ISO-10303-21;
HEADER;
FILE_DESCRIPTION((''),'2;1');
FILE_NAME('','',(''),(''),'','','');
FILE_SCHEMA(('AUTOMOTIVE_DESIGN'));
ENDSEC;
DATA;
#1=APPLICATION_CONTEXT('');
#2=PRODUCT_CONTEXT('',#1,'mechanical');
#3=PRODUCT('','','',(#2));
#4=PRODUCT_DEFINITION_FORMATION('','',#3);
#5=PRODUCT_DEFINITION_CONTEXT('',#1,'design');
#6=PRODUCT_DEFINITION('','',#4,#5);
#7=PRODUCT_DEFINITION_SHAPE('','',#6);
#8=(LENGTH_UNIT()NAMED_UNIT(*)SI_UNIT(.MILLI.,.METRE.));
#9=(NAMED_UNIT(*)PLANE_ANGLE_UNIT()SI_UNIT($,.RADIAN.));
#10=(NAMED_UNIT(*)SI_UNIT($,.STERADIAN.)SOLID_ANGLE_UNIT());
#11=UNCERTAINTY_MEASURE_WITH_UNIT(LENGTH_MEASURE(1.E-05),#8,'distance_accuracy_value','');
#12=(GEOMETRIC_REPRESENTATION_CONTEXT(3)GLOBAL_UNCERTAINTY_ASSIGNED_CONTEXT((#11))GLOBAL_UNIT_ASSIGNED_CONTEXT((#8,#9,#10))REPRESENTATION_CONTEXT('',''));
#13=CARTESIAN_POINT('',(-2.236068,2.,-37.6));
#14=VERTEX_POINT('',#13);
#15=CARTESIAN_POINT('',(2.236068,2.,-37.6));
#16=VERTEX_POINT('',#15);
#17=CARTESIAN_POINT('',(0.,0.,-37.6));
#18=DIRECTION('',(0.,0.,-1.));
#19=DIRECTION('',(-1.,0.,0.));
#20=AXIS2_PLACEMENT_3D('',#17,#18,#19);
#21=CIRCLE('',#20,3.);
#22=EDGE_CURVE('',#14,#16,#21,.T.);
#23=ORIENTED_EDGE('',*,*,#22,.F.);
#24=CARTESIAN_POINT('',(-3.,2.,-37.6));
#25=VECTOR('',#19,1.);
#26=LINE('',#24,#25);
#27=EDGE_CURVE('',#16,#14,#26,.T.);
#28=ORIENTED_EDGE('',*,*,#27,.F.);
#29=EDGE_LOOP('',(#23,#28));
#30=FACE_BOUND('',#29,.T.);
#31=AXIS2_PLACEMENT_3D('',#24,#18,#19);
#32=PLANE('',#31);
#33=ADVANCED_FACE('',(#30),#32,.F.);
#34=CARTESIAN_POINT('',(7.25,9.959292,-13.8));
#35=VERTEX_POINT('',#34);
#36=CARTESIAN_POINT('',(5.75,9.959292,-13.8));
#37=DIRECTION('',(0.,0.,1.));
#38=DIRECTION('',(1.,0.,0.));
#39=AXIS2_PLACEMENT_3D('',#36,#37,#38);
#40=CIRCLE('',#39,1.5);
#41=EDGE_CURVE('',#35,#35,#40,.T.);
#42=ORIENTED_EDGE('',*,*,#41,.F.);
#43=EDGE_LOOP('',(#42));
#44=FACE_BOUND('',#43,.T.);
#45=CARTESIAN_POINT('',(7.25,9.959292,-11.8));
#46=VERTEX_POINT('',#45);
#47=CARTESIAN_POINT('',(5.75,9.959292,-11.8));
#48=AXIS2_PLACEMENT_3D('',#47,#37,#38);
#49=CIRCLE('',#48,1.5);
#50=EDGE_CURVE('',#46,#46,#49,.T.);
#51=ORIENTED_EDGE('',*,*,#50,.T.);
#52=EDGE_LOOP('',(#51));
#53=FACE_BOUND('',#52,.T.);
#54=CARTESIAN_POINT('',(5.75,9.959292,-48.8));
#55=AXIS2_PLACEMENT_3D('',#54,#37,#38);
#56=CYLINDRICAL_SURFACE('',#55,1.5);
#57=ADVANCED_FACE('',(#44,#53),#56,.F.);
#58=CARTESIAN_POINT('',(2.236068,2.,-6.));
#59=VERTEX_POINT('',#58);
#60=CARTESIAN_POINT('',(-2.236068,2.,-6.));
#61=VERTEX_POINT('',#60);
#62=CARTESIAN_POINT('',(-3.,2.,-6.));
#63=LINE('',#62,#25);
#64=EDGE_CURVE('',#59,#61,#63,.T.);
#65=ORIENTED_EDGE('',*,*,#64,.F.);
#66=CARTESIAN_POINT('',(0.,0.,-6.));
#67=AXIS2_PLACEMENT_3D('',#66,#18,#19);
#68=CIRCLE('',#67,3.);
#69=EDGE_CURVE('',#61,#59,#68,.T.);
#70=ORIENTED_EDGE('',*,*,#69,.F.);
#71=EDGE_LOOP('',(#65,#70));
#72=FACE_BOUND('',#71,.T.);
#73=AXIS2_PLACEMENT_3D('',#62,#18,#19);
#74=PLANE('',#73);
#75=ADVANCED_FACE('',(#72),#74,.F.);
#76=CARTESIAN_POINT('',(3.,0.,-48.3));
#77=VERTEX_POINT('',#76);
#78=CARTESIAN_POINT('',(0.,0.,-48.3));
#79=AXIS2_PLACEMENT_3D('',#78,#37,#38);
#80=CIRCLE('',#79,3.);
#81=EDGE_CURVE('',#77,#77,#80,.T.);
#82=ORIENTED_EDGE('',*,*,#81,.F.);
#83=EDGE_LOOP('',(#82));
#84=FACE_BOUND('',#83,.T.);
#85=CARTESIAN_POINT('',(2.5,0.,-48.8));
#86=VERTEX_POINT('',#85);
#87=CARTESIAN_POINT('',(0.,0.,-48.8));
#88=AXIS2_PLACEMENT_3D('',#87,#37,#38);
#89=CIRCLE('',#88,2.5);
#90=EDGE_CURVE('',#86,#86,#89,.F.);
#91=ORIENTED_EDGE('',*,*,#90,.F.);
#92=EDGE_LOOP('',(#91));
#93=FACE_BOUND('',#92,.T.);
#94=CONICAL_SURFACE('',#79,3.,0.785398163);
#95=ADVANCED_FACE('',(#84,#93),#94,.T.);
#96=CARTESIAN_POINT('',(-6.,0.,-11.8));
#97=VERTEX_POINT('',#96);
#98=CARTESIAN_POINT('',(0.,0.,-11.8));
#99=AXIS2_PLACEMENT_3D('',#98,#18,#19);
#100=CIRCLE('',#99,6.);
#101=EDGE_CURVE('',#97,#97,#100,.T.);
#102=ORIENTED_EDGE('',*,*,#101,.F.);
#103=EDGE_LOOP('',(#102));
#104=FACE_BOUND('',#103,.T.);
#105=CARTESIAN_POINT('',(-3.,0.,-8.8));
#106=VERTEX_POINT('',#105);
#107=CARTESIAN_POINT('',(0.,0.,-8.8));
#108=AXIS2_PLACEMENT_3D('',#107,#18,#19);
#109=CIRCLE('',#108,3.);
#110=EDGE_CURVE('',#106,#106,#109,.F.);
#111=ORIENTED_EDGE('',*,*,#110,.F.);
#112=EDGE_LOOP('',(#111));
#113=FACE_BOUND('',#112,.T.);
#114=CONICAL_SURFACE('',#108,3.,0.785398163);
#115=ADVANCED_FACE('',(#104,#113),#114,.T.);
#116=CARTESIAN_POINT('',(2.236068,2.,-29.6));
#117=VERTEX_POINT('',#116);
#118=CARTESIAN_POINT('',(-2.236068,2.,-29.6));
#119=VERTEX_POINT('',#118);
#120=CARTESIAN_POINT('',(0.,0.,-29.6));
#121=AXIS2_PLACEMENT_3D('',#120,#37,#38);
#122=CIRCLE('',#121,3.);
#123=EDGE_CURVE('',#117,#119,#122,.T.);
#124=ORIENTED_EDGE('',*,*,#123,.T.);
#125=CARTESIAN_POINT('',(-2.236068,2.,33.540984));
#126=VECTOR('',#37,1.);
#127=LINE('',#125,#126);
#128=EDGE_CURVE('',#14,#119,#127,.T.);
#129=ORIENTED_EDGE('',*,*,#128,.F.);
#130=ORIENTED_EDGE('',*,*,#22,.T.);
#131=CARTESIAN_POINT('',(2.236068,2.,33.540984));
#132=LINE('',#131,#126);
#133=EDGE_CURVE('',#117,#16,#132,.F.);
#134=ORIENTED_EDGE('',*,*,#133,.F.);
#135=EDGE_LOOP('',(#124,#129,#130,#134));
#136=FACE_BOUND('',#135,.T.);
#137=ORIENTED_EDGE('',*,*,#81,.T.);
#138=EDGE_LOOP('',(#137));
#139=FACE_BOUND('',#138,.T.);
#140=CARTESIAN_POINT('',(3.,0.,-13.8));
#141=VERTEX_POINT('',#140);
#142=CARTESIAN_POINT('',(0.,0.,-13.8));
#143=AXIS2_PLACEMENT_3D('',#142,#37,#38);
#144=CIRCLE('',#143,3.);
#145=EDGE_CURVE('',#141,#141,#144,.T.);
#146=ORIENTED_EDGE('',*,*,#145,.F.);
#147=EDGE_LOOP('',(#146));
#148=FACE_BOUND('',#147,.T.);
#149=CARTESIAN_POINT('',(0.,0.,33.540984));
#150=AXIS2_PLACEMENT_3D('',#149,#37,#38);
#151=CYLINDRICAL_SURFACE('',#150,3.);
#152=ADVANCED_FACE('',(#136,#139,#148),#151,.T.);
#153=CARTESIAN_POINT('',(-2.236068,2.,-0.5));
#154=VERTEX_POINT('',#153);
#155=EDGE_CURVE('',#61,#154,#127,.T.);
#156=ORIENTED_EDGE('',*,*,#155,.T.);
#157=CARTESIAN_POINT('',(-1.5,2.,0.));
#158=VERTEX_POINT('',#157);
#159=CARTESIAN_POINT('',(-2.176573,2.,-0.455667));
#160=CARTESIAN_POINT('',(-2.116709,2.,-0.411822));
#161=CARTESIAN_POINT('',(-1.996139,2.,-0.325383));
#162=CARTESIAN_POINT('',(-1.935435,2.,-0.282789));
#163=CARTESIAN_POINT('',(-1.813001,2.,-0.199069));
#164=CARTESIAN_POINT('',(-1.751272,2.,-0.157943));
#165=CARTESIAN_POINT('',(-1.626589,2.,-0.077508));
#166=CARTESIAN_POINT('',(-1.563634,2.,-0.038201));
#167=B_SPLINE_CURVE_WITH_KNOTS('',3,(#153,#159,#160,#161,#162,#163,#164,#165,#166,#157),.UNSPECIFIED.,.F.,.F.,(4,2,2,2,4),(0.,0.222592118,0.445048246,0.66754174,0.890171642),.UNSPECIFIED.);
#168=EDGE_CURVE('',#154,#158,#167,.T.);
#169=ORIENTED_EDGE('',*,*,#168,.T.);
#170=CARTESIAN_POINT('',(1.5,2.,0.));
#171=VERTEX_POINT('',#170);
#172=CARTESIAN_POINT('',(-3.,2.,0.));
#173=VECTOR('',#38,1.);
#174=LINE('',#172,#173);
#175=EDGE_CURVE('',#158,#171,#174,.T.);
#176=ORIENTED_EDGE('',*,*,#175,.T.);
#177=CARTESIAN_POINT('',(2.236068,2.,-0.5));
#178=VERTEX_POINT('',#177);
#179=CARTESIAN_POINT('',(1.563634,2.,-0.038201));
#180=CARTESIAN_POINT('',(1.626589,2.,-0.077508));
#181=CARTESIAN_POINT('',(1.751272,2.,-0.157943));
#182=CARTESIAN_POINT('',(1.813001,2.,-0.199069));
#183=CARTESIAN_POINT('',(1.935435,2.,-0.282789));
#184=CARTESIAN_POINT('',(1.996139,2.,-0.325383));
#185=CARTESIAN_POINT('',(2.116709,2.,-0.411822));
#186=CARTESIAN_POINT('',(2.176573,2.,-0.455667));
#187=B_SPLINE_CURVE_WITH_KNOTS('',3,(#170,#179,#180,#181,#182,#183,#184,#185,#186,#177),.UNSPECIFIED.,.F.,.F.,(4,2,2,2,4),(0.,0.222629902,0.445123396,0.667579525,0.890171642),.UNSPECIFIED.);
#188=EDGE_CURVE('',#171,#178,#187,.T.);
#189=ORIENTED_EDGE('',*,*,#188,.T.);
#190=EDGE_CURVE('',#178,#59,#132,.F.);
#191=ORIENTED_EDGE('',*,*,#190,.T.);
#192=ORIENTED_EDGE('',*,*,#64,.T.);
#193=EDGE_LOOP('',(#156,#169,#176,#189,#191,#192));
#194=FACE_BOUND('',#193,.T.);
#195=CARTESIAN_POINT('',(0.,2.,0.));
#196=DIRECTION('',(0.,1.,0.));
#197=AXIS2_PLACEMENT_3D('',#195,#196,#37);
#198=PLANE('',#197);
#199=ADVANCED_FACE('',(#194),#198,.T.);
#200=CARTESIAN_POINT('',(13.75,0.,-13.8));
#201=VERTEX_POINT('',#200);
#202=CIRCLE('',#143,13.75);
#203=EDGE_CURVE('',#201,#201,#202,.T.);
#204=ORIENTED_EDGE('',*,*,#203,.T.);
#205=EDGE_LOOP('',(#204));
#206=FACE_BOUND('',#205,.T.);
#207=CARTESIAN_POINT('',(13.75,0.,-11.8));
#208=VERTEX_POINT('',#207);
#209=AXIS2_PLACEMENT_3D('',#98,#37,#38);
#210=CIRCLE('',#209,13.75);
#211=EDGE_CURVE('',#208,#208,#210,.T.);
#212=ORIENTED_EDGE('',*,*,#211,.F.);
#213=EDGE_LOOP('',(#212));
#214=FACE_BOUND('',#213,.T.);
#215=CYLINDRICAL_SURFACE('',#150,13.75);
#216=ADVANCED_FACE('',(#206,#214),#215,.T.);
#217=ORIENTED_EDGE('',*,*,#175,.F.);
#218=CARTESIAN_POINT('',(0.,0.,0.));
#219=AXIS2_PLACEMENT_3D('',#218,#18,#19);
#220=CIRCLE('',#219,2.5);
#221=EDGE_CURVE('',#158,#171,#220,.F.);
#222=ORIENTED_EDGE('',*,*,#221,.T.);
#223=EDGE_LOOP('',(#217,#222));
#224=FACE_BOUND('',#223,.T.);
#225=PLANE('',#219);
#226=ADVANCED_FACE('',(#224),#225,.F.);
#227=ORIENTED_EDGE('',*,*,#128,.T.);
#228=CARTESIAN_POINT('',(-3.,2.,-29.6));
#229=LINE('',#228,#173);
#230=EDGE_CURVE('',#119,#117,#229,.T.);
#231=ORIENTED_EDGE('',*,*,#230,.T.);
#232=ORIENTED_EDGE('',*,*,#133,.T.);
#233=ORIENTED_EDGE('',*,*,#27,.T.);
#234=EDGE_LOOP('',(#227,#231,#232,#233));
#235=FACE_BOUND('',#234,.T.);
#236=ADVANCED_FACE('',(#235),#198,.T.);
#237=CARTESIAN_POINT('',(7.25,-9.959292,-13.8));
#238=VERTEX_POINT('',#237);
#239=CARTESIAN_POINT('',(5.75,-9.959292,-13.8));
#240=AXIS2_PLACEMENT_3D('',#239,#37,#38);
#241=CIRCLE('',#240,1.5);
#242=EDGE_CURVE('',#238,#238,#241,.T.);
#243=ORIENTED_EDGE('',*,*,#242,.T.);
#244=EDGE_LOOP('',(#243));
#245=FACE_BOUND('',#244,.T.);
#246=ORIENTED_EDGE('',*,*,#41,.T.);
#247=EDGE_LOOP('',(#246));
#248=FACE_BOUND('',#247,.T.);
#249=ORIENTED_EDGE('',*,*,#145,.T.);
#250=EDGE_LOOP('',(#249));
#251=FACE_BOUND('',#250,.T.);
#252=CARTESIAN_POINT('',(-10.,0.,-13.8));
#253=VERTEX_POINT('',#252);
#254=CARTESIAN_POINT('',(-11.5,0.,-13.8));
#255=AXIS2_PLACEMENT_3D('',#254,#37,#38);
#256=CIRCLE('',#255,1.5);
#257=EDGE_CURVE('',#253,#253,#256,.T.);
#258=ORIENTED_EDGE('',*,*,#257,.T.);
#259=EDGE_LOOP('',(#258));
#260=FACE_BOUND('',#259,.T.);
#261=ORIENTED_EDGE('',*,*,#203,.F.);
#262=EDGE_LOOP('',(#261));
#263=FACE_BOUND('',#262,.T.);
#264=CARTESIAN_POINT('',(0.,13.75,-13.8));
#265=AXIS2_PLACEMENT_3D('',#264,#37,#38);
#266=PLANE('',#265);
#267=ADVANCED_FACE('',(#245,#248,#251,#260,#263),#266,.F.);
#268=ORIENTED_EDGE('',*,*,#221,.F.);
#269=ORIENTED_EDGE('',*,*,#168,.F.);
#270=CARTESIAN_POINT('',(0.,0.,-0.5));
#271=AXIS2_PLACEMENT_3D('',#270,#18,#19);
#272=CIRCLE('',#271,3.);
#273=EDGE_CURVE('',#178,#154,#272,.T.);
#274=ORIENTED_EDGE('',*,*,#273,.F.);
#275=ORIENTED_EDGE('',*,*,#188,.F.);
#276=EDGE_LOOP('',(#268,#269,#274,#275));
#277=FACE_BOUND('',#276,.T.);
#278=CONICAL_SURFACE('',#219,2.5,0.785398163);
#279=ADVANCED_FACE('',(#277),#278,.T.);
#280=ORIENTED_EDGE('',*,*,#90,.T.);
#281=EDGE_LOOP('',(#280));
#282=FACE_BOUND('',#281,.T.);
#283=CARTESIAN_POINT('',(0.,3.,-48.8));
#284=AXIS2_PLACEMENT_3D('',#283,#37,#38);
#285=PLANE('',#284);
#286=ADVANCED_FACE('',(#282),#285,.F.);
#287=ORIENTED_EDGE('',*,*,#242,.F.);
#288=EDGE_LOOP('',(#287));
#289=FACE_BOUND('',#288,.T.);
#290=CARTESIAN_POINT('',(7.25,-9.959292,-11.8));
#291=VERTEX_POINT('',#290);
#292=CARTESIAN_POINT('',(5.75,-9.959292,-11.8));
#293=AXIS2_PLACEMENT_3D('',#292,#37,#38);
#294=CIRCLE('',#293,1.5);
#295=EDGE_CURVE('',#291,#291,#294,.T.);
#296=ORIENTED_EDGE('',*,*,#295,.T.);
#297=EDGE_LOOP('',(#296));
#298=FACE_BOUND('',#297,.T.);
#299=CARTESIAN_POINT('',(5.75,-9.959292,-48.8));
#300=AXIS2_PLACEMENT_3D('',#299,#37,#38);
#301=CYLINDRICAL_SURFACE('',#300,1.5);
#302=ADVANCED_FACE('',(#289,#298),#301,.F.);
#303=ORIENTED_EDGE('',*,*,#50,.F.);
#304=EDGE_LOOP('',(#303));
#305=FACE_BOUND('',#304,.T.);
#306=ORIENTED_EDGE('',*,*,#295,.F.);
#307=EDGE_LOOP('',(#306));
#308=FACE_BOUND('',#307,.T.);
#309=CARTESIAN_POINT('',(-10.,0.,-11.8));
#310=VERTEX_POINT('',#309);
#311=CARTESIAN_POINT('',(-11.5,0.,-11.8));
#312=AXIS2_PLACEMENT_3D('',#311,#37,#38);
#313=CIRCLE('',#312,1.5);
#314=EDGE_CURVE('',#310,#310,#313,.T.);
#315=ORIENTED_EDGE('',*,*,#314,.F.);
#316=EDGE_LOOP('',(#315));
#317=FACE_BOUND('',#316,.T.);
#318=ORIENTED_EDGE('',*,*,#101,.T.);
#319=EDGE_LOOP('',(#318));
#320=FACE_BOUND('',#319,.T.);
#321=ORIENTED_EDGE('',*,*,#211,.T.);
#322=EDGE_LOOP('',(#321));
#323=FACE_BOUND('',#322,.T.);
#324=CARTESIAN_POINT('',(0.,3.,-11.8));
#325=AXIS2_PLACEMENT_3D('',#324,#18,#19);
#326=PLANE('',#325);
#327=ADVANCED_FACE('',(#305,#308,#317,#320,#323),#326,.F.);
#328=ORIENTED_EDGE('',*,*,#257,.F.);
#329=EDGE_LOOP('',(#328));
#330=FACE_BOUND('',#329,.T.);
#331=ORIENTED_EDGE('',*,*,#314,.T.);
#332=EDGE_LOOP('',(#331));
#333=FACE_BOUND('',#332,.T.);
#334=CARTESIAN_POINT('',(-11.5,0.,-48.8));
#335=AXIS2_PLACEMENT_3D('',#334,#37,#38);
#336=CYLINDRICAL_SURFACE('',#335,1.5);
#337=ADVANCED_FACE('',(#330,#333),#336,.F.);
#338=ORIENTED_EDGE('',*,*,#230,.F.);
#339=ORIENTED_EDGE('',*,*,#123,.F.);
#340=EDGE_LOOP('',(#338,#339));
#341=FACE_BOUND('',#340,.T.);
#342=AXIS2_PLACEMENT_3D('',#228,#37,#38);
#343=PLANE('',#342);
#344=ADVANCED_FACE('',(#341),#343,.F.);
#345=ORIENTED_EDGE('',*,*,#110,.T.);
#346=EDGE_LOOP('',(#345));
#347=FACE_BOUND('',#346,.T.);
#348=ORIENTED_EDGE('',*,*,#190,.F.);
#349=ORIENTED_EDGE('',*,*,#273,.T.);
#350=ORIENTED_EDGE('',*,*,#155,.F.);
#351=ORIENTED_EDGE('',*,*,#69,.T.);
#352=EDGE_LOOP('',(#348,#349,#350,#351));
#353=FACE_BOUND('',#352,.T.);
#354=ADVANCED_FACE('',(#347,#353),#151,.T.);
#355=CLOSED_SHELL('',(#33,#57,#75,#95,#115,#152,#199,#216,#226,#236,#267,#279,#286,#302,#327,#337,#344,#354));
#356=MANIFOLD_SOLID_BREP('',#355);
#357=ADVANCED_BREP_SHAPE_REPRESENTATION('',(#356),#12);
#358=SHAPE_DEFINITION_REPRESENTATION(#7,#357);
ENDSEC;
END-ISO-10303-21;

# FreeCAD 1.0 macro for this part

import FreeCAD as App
import Part
import Sketcher

V = App.Vector
Q = App.Units.Quantity


def edges_at(feature, points):
    """Names of the edges that pass closest to the given points."""
    edges = feature.Shape.Edges
    near = lambda p: min(range(len(edges)), key=lambda i: edges[i].distToShape(Part.Vertex(*p))[0])
    return sorted({f"Edge{near(p) + 1}" for p in points})


def add_polygon(sketch, points):
    """Adds a closed chain of lines whose ends are joined by coincident constraints."""
    first, n = sketch.GeometryCount, len(points)
    for a, b in zip(points, points[1:] + points[:1]):
        sketch.addGeometry(Part.LineSegment(App.Vector(*a, 0), App.Vector(*b, 0)), False)
    for i in range(n):
        sketch.addConstraint(Sketcher.Constraint("Coincident", first + i, 2, first + (i + 1) % n, 1))

doc = App.newDocument("Part")
params = doc.addObject("Spreadsheet::Sheet", "Params")
for row, (alias, value) in enumerate([
    ("sketch1_width", "3 mm"),
    ("sketch1_height", "35 mm"),
    ("sketch1_height2", "2 mm"),
    ("sketch1_height3", "48.8 mm"),
    ("sketch1_width2", "10.75 mm"),
    ("revolution_angle", "360 deg"),
    ("sketch2_width", "6 mm"),
    ("sketch2_height", "8 mm"),
    ("pocket1_length", "1 mm"),
    ("chamfer_size", "3 mm"),
    ("sketch3_diameter", "3 mm"),
    ("chamfer2_size", "0.5 mm"),
], start=1):
    params.set(f"A{row}", alias)
    params.set(f"B{row}", "=" + value)
    params.setAlias(f"B{row}", alias)

body = doc.addObject("PartDesign::Body", "Body")

sketch1 = doc.addObject("Sketcher::SketchObject", "Sketch")
body.addObject(sketch1)
sketch1.AttachmentSupport = (doc.YZ_Plane, [""])
sketch1.MapMode = "FlatFace"
add_polygon(sketch1, [(3, 0), (0, 0), (0, -48.8), (3, -48.8), (3, -13.8), (13.75, -13.8), (13.75, -11.8), (3, -11.8)])
sketch1.addConstraint(Sketcher.Constraint("Horizontal", 0))
sketch1.addConstraint(Sketcher.Constraint("Vertical", 1))
sketch1.addConstraint(Sketcher.Constraint("Horizontal", 2))
sketch1.addConstraint(Sketcher.Constraint("Vertical", 3))
sketch1.addConstraint(Sketcher.Constraint("Horizontal", 4))
sketch1.addConstraint(Sketcher.Constraint("Vertical", 5))
sketch1.addConstraint(Sketcher.Constraint("Horizontal", 6))
sketch1.addConstraint(Sketcher.Constraint("Vertical", 7))
sketch1.addConstraint(Sketcher.Constraint("Coincident", 0, 2, -1, 1))
sketch1.addConstraint(Sketcher.Constraint("Vertical", 3, 2, 6, 2))
sketch1.addConstraint(Sketcher.Constraint("DistanceX", 0, 2, 0, 1, Q("3 mm")))
sketch1.addConstraint(Sketcher.Constraint("DistanceY", 3, 1, 3, 2, Q("35 mm")))
sketch1.addConstraint(Sketcher.Constraint("DistanceY", 5, 1, 5, 2, Q("2 mm")))
sketch1.addConstraint(Sketcher.Constraint("DistanceY", 1, 2, 1, 1, Q("48.8 mm")))
sketch1.addConstraint(Sketcher.Constraint("DistanceX", 4, 1, 4, 2, Q("10.75 mm")))
sketch1.setExpression("Constraints[18]", "Params.sketch1_width")
sketch1.setExpression("Constraints[19]", "Params.sketch1_height")
sketch1.setExpression("Constraints[20]", "Params.sketch1_height2")
sketch1.setExpression("Constraints[21]", "Params.sketch1_height3")
sketch1.setExpression("Constraints[22]", "Params.sketch1_width2")
revolution = doc.addObject("PartDesign::Revolution", "Revolution")
body.addObject(revolution)
revolution.Profile = sketch1
revolution.ReferenceAxis = (sketch1, ["V_Axis"])
revolution.setExpression("Angle", "Params.revolution_angle")

sketch2 = doc.addObject("Sketcher::SketchObject", "Sketch001")
body.addObject(sketch2)
sketch2.AttachmentSupport = (doc.XZ_Plane, [""])
sketch2.MapMode = "FlatFace"
sketch2.AttachmentOffset = App.Placement(V(0, 0, -3), App.Rotation())
add_polygon(sketch2, [(-3, -37.6), (-3, -29.6), (3, -29.6), (3, -37.6)])
add_polygon(sketch2, [(-3, -6), (-3, 0), (3, 0), (3, -6)])
sketch2.addConstraint(Sketcher.Constraint("Vertical", 0))
sketch2.addConstraint(Sketcher.Constraint("Horizontal", 1))
sketch2.addConstraint(Sketcher.Constraint("Vertical", 2))
sketch2.addConstraint(Sketcher.Constraint("Horizontal", 3))
sketch2.addConstraint(Sketcher.Constraint("Vertical", 4))
sketch2.addConstraint(Sketcher.Constraint("Horizontal", 5))
sketch2.addConstraint(Sketcher.Constraint("Vertical", 6))
sketch2.addConstraint(Sketcher.Constraint("Horizontal", 7))
sketch2.addConstraint(Sketcher.Constraint("Symmetric", 4, 2, 5, 2, -1, 1))
sketch2.addConstraint(Sketcher.Constraint("Vertical", 3, 2, 4, 2))
sketch2.addConstraint(Sketcher.Constraint("Vertical", 2, 2, 5, 2))
sketch2.addConstraint(Sketcher.Constraint("Equal", 7, 4))
sketch2.addConstraint(Sketcher.Constraint("DistanceX", 1, 1, 1, 2, Q("6 mm")))
sketch2.addConstraint(Sketcher.Constraint("DistanceY", 0, 1, 0, 2, Q("8 mm")))
sketch2.addConstraint(Sketcher.Constraint("DistanceY", 0, 2, -1, 1, Q("29.6 mm")))
sketch2.setExpression("Constraints[20]", "Params.sketch2_width")
sketch2.setExpression("Constraints[21]", "Params.sketch2_height")
pocket1 = doc.addObject("PartDesign::Pocket", "Pocket")
body.addObject(pocket1)
pocket1.Profile = sketch2
pocket1.setExpression("Length", "Params.pocket1_length")
pocket1.Reversed = True
doc.recompute()

chamfer = doc.addObject("PartDesign::Chamfer", "Chamfer")
body.addObject(chamfer)
chamfer.Base = (pocket1, edges_at(pocket1, [(-3, 0, -11.8)]))
chamfer.setExpression("Size", "Params.chamfer_size")

sketch3 = doc.addObject("Sketcher::SketchObject", "Sketch002")
body.addObject(sketch3)
sketch3.AttachmentSupport = (doc.XY_Plane, [""])
sketch3.MapMode = "FlatFace"
sketch3.AttachmentOffset = App.Placement(V(0, 0, -11.8), App.Rotation())
sketch3.addGeometry(Part.Circle(V(5.75, -9.959292, 0), V(0, 0, 1), 1.5), False)
sketch3.addGeometry(Part.Circle(V(-11.5, 0, 0), V(0, 0, 1), 1.5), False)
sketch3.addGeometry(Part.Circle(V(5.75, 9.959292, 0), V(0, 0, 1), 1.5), False)
sketch3.addConstraint(Sketcher.Constraint("Equal", 0, 1))
sketch3.addConstraint(Sketcher.Constraint("Equal", 1, 2))
sketch3.addConstraint(Sketcher.Constraint("Symmetric", 0, 3, 2, 3, -1))
sketch3.addConstraint(Sketcher.Constraint("PointOnObject", 1, 3, -1))
sketch3.addConstraint(Sketcher.Constraint("Diameter", 0, Q("3 mm")))
sketch3.addConstraint(Sketcher.Constraint("DistanceX", 1, 3, -1, 1, Q("11.5 mm")))
sketch3.addConstraint(Sketcher.Constraint("DistanceX", -1, 1, 0, 3, Q("5.75 mm")))
sketch3.addConstraint(Sketcher.Constraint("DistanceY", 0, 3, -1, 1, Q("9.959292 mm")))
sketch3.setExpression("Constraints[4]", "Params.sketch3_diameter")
pocket2 = doc.addObject("PartDesign::Pocket", "Pocket001")
body.addObject(pocket2)
pocket2.Profile = sketch3
pocket2.Type = "ThroughAll"
doc.recompute()

chamfer2 = doc.addObject("PartDesign::Chamfer", "Chamfer001")
body.addObject(chamfer2)
chamfer2.Base = (pocket2, edges_at(pocket2, [(-1.07, -2.803, 0), (-3, 0, -48.8)]))
chamfer2.setExpression("Size", "Params.chamfer2_size")

doc.recompute()
